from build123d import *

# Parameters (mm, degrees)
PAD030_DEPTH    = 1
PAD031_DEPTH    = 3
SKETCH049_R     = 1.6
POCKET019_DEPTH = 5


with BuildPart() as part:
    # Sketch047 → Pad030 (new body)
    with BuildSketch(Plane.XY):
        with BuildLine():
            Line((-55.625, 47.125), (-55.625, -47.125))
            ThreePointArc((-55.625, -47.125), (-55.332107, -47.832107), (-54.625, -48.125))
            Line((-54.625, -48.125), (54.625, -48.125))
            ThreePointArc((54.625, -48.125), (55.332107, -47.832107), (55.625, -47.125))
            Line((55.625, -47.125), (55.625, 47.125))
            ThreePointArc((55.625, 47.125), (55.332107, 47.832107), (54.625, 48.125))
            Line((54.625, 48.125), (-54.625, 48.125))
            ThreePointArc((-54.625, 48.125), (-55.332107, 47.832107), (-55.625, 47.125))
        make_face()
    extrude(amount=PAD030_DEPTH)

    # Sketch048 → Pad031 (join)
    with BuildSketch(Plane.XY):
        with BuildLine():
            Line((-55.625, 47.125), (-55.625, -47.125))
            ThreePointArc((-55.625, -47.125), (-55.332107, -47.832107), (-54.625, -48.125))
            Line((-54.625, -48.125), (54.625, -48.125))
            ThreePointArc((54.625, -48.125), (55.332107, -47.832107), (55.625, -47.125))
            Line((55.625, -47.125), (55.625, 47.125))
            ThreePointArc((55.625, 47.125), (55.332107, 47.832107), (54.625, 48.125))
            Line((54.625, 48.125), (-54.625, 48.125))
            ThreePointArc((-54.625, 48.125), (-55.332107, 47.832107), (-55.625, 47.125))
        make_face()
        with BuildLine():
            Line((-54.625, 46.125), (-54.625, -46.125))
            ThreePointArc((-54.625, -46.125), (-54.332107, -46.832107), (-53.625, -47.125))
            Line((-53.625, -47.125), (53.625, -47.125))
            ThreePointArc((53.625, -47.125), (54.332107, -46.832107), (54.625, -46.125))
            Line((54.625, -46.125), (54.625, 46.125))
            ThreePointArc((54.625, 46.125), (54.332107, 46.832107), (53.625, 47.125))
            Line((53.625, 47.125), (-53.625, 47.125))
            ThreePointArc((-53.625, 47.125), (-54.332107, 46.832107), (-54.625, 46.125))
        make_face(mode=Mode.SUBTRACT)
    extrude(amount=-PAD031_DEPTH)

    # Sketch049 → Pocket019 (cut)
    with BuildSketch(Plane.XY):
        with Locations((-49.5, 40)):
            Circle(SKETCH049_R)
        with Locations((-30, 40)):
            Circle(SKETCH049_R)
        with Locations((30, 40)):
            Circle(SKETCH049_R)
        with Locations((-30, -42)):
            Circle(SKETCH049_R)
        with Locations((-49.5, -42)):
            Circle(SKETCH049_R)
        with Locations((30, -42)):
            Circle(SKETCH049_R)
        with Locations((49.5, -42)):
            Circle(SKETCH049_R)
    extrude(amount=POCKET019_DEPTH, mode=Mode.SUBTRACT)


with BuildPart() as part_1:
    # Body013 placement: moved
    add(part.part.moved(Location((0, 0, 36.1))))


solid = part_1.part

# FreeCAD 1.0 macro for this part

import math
import FreeCAD as App
import Part
import Sketcher
from FreeCAD import Vector

doc = App.newDocument("Part")
body = doc.addObject("PartDesign::Body", "Body")

# Sketch on XY plane
sketch1 = body.newObject("Sketcher::SketchObject", "Sketch")
sketch1.AttachmentSupport = (doc.getObject("XY_Plane"), [""])
sketch1.MapMode = "FlatFace"
sketch1.addGeometry(Part.LineSegment(Vector(-55.6, 47.1, 0), Vector(-55.6, -47.1, 0)), False)
sketch1.addGeometry(Part.ArcOfCircle(Part.Circle(Vector(-54.6, -47.1, 0), Vector(0, 0, 1), 1), math.radians(180), math.radians(270)), False)
sketch1.addGeometry(Part.LineSegment(Vector(-54.6, -48.1, 0), Vector(54.6, -48.1, 0)), False)
sketch1.addGeometry(Part.ArcOfCircle(Part.Circle(Vector(54.6, -47.1, 0), Vector(0, 0, 1), 1), math.radians(-90), math.radians(0)), False)
sketch1.addGeometry(Part.LineSegment(Vector(55.6, -47.1, 0), Vector(55.6, 47.1, 0)), False)
sketch1.addGeometry(Part.ArcOfCircle(Part.Circle(Vector(54.6, 47.1, 0), Vector(0, 0, 1), 1), math.radians(0), math.radians(90)), False)
sketch1.addGeometry(Part.LineSegment(Vector(54.6, 48.1, 0), Vector(-54.6, 48.1, 0)), False)
sketch1.addGeometry(Part.ArcOfCircle(Part.Circle(Vector(-54.6, 47.1, 0), Vector(0, 0, 1), 1), math.radians(90), math.radians(180)), False)
sketch1.addConstraint(Sketcher.Constraint("Tangent", 0, 2, 1, 1))
sketch1.addConstraint(Sketcher.Constraint("Tangent", 1, 2, 2, 1))
sketch1.addConstraint(Sketcher.Constraint("Tangent", 2, 2, 3, 1))
sketch1.addConstraint(Sketcher.Constraint("Tangent", 3, 2, 4, 1))
sketch1.addConstraint(Sketcher.Constraint("Tangent", 4, 2, 5, 1))
sketch1.addConstraint(Sketcher.Constraint("Tangent", 5, 2, 6, 1))
sketch1.addConstraint(Sketcher.Constraint("Tangent", 6, 2, 7, 1))
sketch1.addConstraint(Sketcher.Constraint("Tangent", 7, 2, 0, 1))
sketch1.addConstraint(Sketcher.Constraint("Vertical", 0))
sketch1.addConstraint(Sketcher.Constraint("Horizontal", 2))
sketch1.addConstraint(Sketcher.Constraint("Vertical", 4))
sketch1.addConstraint(Sketcher.Constraint("Horizontal", 6))
sketch1.addConstraint(Sketcher.Constraint("Equal", 1, 3))
sketch1.addConstraint(Sketcher.Constraint("Equal", 3, 5))
sketch1.addConstraint(Sketcher.Constraint("Equal", 5, 7))
sketch1.addConstraint(Sketcher.Constraint("Symmetric", 1, 3, 5, 3, -1, 1))
sketch1.addConstraint(Sketcher.Constraint("Radius", 1, 0.999999))
sketch1.addConstraint(Sketcher.Constraint("DistanceX", 2, 1, 2, 2, 109.25))
sketch1.addConstraint(Sketcher.Constraint("DistanceY", 0, 2, 0, 1, 94.25))
pad1 = body.newObject("PartDesign::Pad", "Pad")
pad1.Profile = sketch1
pad1.Length = 1

# Sketch on XY plane
sketch2 = body.newObject("Sketcher::SketchObject", "Sketch001")
sketch2.AttachmentSupport = (doc.getObject("XY_Plane"), [""])
sketch2.MapMode = "FlatFace"
sketch2.addGeometry(Part.LineSegment(Vector(-55.6, 47.1, 0), Vector(-55.6, -47.1, 0)), False)
sketch2.addGeometry(Part.ArcOfCircle(Part.Circle(Vector(-54.6, -47.1, 0), Vector(0, 0, 1), 1), math.radians(180), math.radians(270)), False)
sketch2.addGeometry(Part.LineSegment(Vector(-54.6, -48.1, 0), Vector(54.6, -48.1, 0)), False)
sketch2.addGeometry(Part.ArcOfCircle(Part.Circle(Vector(54.6, -47.1, 0), Vector(0, 0, 1), 1), math.radians(-90), math.radians(0)), False)
sketch2.addGeometry(Part.LineSegment(Vector(55.6, -47.1, 0), Vector(55.6, 47.1, 0)), False)
sketch2.addGeometry(Part.ArcOfCircle(Part.Circle(Vector(54.6, 47.1, 0), Vector(0, 0, 1), 1), math.radians(0), math.radians(90)), False)
sketch2.addGeometry(Part.LineSegment(Vector(54.6, 48.1, 0), Vector(-54.6, 48.1, 0)), False)
sketch2.addGeometry(Part.ArcOfCircle(Part.Circle(Vector(-54.6, 47.1, 0), Vector(0, 0, 1), 1), math.radians(90), math.radians(180)), False)
sketch2.addGeometry(Part.LineSegment(Vector(-54.6, -46.1, 0), Vector(-54.6, 46.1, 0)), False)
sketch2.addGeometry(Part.ArcOfCircle(Part.Circle(Vector(-53.6, 46.1, 0), Vector(0, 0, 1), 1), math.radians(90), math.radians(180)), False)
sketch2.addGeometry(Part.LineSegment(Vector(-53.6, 47.1, 0), Vector(53.6, 47.1, 0)), False)
sketch2.addGeometry(Part.ArcOfCircle(Part.Circle(Vector(53.6, 46.1, 0), Vector(0, 0, 1), 1), math.radians(0), math.radians(90)), False)
sketch2.addGeometry(Part.LineSegment(Vector(54.6, 46.1, 0), Vector(54.6, -46.1, 0)), False)
sketch2.addGeometry(Part.ArcOfCircle(Part.Circle(Vector(53.6, -46.1, 0), Vector(0, 0, 1), 1), math.radians(-90), math.radians(0)), False)
sketch2.addGeometry(Part.LineSegment(Vector(53.6, -47.1, 0), Vector(-53.6, -47.1, 0)), False)
sketch2.addGeometry(Part.ArcOfCircle(Part.Circle(Vector(-53.6, -46.1, 0), Vector(0, 0, 1), 1), math.radians(180), math.radians(270)), False)
sketch2.addConstraint(Sketcher.Constraint("Tangent", 0, 2, 1, 1))
sketch2.addConstraint(Sketcher.Constraint("Tangent", 1, 2, 2, 1))
sketch2.addConstraint(Sketcher.Constraint("Tangent", 2, 2, 3, 1))
sketch2.addConstraint(Sketcher.Constraint("Tangent", 3, 2, 4, 1))
sketch2.addConstraint(Sketcher.Constraint("Tangent", 4, 2, 5, 1))
sketch2.addConstraint(Sketcher.Constraint("Tangent", 5, 2, 6, 1))
sketch2.addConstraint(Sketcher.Constraint("Tangent", 6, 2, 7, 1))
sketch2.addConstraint(Sketcher.Constraint("Tangent", 7, 2, 0, 1))
sketch2.addConstraint(Sketcher.Constraint("Tangent", 8, 2, 9, 2))
sketch2.addConstraint(Sketcher.Constraint("Tangent", 9, 1, 10, 1))
sketch2.addConstraint(Sketcher.Constraint("Tangent", 10, 2, 11, 2))
sketch2.addConstraint(Sketcher.Constraint("Tangent", 11, 1, 12, 1))
sketch2.addConstraint(Sketcher.Constraint("Tangent", 12, 2, 13, 2))
sketch2.addConstraint(Sketcher.Constraint("Tangent", 13, 1, 14, 1))
sketch2.addConstraint(Sketcher.Constraint("Tangent", 14, 2, 15, 2))
sketch2.addConstraint(Sketcher.Constraint("Tangent", 15, 1, 8, 1))
sketch2.addConstraint(Sketcher.Constraint("Vertical", 0))
sketch2.addConstraint(Sketcher.Constraint("Horizontal", 2))
sketch2.addConstraint(Sketcher.Constraint("Vertical", 4))
sketch2.addConstraint(Sketcher.Constraint("Horizontal", 6))
sketch2.addConstraint(Sketcher.Constraint("Vertical", 8))
sketch2.addConstraint(Sketcher.Constraint("Horizontal", 10))
sketch2.addConstraint(Sketcher.Constraint("Vertical", 12))
sketch2.addConstraint(Sketcher.Constraint("Horizontal", 14))
sketch2.addConstraint(Sketcher.Constraint("Equal", 1, 3))
sketch2.addConstraint(Sketcher.Constraint("Equal", 3, 5))
sketch2.addConstraint(Sketcher.Constraint("Equal", 5, 7))
sketch2.addConstraint(Sketcher.Constraint("Equal", 7, 9))
sketch2.addConstraint(Sketcher.Constraint("Equal", 9, 11))
sketch2.addConstraint(Sketcher.Constraint("Equal", 11, 13))
sketch2.addConstraint(Sketcher.Constraint("Equal", 13, 15))
sketch2.addConstraint(Sketcher.Constraint("Symmetric", 1, 3, 5, 3, -1, 1))
sketch2.addConstraint(Sketcher.Constraint("Symmetric", 9, 3, 13, 3, -1, 1))
sketch2.addConstraint(Sketcher.Constraint("Horizontal", 7, 2, 9, 1))
sketch2.addConstraint(Sketcher.Constraint("Vertical", 6, 2, 8, 2))
sketch2.addConstraint(Sketcher.Constraint("Radius", 1, 0.999999))
sketch2.addConstraint(Sketcher.Constraint("DistanceX", 2, 1, 2, 2, 109.25))
sketch2.addConstraint(Sketcher.Constraint("DistanceY", 0, 2, 0, 1, 94.25))
pad2 = body.newObject("PartDesign::Pad", "Pad001")
pad2.Profile = sketch2
pad2.Length = 3
pad2.Reversed = True

# Sketch on XY plane
sketch3 = body.newObject("Sketcher::SketchObject", "Sketch002")
sketch3.AttachmentSupport = (doc.getObject("XY_Plane"), [""])
sketch3.MapMode = "FlatFace"
sketch3.addGeometry(Part.Circle(Vector(-49.5, 40, 0), Vector(0, 0, 1), 1.6), False)
sketch3.addGeometry(Part.Circle(Vector(-30, 40, 0), Vector(0, 0, 1), 1.6), False)
sketch3.addGeometry(Part.Circle(Vector(30, 40, 0), Vector(0, 0, 1), 1.6), False)
sketch3.addGeometry(Part.Circle(Vector(-30, -42, 0), Vector(0, 0, 1), 1.6), False)
sketch3.addGeometry(Part.Circle(Vector(-49.5, -42, 0), Vector(0, 0, 1), 1.6), False)
sketch3.addGeometry(Part.Circle(Vector(30, -42, 0), Vector(0, 0, 1), 1.6), False)
sketch3.addGeometry(Part.Circle(Vector(49.5, -42, 0), Vector(0, 0, 1), 1.6), False)
sketch3.addConstraint(Sketcher.Constraint("Equal", 0, 1))
sketch3.addConstraint(Sketcher.Constraint("Equal", 1, 2))
sketch3.addConstraint(Sketcher.Constraint("Equal", 2, 3))
sketch3.addConstraint(Sketcher.Constraint("Equal", 3, 4))
sketch3.addConstraint(Sketcher.Constraint("Equal", 4, 5))
sketch3.addConstraint(Sketcher.Constraint("Equal", 5, 6))
sketch3.addConstraint(Sketcher.Constraint("Symmetric", 1, 3, 2, 3, -2))
sketch3.addConstraint(Sketcher.Constraint("Symmetric", 3, 3, 5, 3, -2))
sketch3.addConstraint(Sketcher.Constraint("Symmetric", 4, 3, 6, 3, -2))
sketch3.addConstraint(Sketcher.Constraint("Horizontal", 0, 3, 1, 3))
sketch3.addConstraint(Sketcher.Constraint("Horizontal", 3, 3, 4, 3))
sketch3.addConstraint(Sketcher.Constraint("Vertical", 1, 3, 3, 3))
sketch3.addConstraint(Sketcher.Constraint("Vertical", 0, 3, 4, 3))
sketch3.addConstraint(Sketcher.Constraint("Diameter", 0, 3.2))
sketch3.addConstraint(Sketcher.Constraint("DistanceY", -1, 1, 0, 3, 40.0))
sketch3.addConstraint(Sketcher.Constraint("DistanceX", 1, 3, -1, 1, 30.0))
sketch3.addConstraint(Sketcher.Constraint("DistanceY", 3, 3, -1, 1, 42.0))
sketch3.addConstraint(Sketcher.Constraint("DistanceX", 4, 3, 6, 3, 99.0))
pocket1 = body.newObject("PartDesign::Pocket", "Pocket")
pocket1.Profile = sketch3
pocket1.Length = 5
pocket1.Reversed = True
body2 = doc.addObject("PartDesign::Body", "Body001")
doc.recompute()

body.Placement = App.Placement(Vector(0, 0, 36.1), App.Rotation(Vector(0, 0, 1), 0))
boolean = body2.newObject("PartDesign::Boolean", "Boolean")
boolean.Type = "Fuse"
boolean.addObjects([body])

doc.recompute()
